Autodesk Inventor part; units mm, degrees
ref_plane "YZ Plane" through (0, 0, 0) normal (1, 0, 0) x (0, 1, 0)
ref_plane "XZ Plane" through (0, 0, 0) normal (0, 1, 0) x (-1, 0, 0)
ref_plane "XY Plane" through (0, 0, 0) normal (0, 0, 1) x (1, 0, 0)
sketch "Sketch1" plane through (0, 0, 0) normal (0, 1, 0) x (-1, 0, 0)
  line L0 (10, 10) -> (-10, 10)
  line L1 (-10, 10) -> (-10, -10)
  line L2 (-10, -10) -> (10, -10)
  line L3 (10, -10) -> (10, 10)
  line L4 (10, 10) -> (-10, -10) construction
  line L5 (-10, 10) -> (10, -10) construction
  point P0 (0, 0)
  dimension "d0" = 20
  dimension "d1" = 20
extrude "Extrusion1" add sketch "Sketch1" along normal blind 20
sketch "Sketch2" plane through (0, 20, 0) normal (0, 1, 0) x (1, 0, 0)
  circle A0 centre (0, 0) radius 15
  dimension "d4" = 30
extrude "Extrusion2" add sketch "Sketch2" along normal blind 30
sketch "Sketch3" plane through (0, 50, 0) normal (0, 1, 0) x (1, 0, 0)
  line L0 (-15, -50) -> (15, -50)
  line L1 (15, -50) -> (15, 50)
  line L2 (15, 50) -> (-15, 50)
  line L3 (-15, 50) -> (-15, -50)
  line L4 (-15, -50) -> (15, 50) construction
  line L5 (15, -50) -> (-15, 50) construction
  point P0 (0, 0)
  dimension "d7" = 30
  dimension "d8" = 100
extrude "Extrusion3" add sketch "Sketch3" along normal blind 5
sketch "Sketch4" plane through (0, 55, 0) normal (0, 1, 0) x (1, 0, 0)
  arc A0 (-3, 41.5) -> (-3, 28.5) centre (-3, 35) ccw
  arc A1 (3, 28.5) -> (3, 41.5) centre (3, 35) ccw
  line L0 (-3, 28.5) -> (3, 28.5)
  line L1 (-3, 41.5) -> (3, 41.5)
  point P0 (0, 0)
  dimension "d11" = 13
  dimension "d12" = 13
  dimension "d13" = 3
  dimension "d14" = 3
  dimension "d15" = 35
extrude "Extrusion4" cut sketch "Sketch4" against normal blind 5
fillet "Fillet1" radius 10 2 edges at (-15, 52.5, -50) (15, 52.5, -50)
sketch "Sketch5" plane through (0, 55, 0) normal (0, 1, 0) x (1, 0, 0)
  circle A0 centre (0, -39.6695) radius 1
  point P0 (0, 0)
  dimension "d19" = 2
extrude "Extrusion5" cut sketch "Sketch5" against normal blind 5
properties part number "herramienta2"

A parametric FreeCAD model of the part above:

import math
import FreeCAD as App
import Part
import Sketcher
from FreeCAD import Vector
Q = App.Units.Quantity


def edges_at(feature, points):
    """Names of the edges that pass closest to the given points."""
    edges = feature.Shape.Edges
    near = lambda p: min(range(len(edges)), key=lambda i: edges[i].distToShape(Part.Vertex(*p))[0])
    return sorted({f"Edge{near(p) + 1}" for p in points})

doc = App.newDocument("Part")
body = doc.addObject("PartDesign::Body", "Body")

# Sketch on XZ plane
sketch1 = body.newObject("Sketcher::SketchObject", "Sketch")
sketch1.AttachmentSupport = (doc.getObject("XZ_Plane"), [""])
sketch1.MapMode = "FlatFace"
sketch1.addGeometry([
    Part.LineSegment(Vector(-10, -10, 0), Vector(-10, 10, 0)),
    Part.LineSegment(Vector(-10, 10, 0), Vector(10, 10, 0)),
    Part.LineSegment(Vector(10, 10, 0), Vector(10, -10, 0)),
    Part.LineSegment(Vector(10, -10, 0), Vector(-10, -10, 0)),
], False)
sketch1.addConstraint([
    Sketcher.Constraint("Coincident", 0, 2, 1, 1),
    Sketcher.Constraint("Coincident", 1, 2, 2, 1),
    Sketcher.Constraint("Coincident", 2, 2, 3, 1),
    Sketcher.Constraint("Coincident", 3, 2, 0, 1),
    Sketcher.Constraint("Vertical", 0),
    Sketcher.Constraint("Horizontal", 1),
    Sketcher.Constraint("Vertical", 2),
    Sketcher.Constraint("Horizontal", 3),
    Sketcher.Constraint("Symmetric", 0, 2, 2, 2, -1, 1),
    Sketcher.Constraint("Equal", 3, 0),
    Sketcher.Constraint("DistanceX", 1, 1, 1, 2, Q("20 mm")),
])
pad1 = body.newObject("PartDesign::Pad", "Pad")
pad1.Profile = sketch1
pad1.Length = 20
pad1.Reversed = True

# Sketch on XZ plane
sketch2 = body.newObject("Sketcher::SketchObject", "Sketch001")
sketch2.AttachmentSupport = (doc.getObject("XZ_Plane"), [""])
sketch2.MapMode = "FlatFace"
sketch2.AttachmentOffset = App.Placement(Vector(0, 0, -20), App.Rotation())
sketch2.addGeometry(Part.Circle(Vector(0, 0, 0), Vector(0, 0, 1), 15), False)
sketch2.addConstraint([
    Sketcher.Constraint("Coincident", 0, 3, -1, 1),
    Sketcher.Constraint("Diameter", 0, Q("30 mm")),
])
pad2 = body.newObject("PartDesign::Pad", "Pad001")
pad2.Profile = sketch2
pad2.Length = 30
pad2.Reversed = True

# Sketch on XZ plane
sketch3 = body.newObject("Sketcher::SketchObject", "Sketch002")
sketch3.AttachmentSupport = (doc.getObject("XZ_Plane"), [""])
sketch3.MapMode = "FlatFace"
sketch3.AttachmentOffset = App.Placement(Vector(0, 0, -50), App.Rotation())
sketch3.addGeometry([
    Part.LineSegment(Vector(-15, -50, 0), Vector(-15, 50, 0)),
    Part.LineSegment(Vector(-15, 50, 0), Vector(15, 50, 0)),
    Part.LineSegment(Vector(15, 50, 0), Vector(15, -50, 0)),
    Part.LineSegment(Vector(15, -50, 0), Vector(-15, -50, 0)),
], False)
sketch3.addConstraint([
    Sketcher.Constraint("Coincident", 0, 2, 1, 1),
    Sketcher.Constraint("Coincident", 1, 2, 2, 1),
    Sketcher.Constraint("Coincident", 2, 2, 3, 1),
    Sketcher.Constraint("Coincident", 3, 2, 0, 1),
    Sketcher.Constraint("Vertical", 0),
    Sketcher.Constraint("Horizontal", 1),
    Sketcher.Constraint("Vertical", 2),
    Sketcher.Constraint("Horizontal", 3),
    Sketcher.Constraint("Symmetric", 0, 2, 2, 2, -1, 1),
    Sketcher.Constraint("DistanceX", 1, 1, 1, 2, Q("30 mm")),
    Sketcher.Constraint("DistanceY", 0, 1, 0, 2, Q("100 mm")),
])
pad3 = body.newObject("PartDesign::Pad", "Pad002")
pad3.Profile = sketch3
pad3.Length = 5
pad3.Reversed = True

# Sketch on XZ plane
sketch4 = body.newObject("Sketcher::SketchObject", "Sketch003")
sketch4.AttachmentSupport = (doc.getObject("XZ_Plane"), [""])
sketch4.MapMode = "FlatFace"
sketch4.AttachmentOffset = App.Placement(Vector(0, 0, -55), App.Rotation())
sketch4.addGeometry([
    Part.LineSegment(Vector(3, -41.5, 0), Vector(-3, -41.5, 0)),
    Part.ArcOfCircle(Part.Circle(Vector(-3, -35, 0), Vector(0, 0, 1), 6.5), math.radians(90), math.radians(270)),
    Part.LineSegment(Vector(-3, -28.5, 0), Vector(3, -28.5, 0)),
    Part.ArcOfCircle(Part.Circle(Vector(3, -35, 0), Vector(0, 0, 1), 6.5), math.radians(-90), math.radians(90)),
], False)
sketch4.addConstraint([
    Sketcher.Constraint("Tangent", 0, 2, 1, 2),
    Sketcher.Constraint("Tangent", 1, 1, 2, 1),
    Sketcher.Constraint("Tangent", 2, 2, 3, 2),
    Sketcher.Constraint("Tangent", 3, 1, 0, 1),
    Sketcher.Constraint("Horizontal", 0),
    Sketcher.Constraint("Horizontal", 2),
    Sketcher.Constraint("Radius", 1, Q("6.5 mm")),
    Sketcher.Constraint("DistanceX", 1, 3, -1, 1, Q("3 mm")),
    Sketcher.Constraint("DistanceY", 1, 3, -1, 1, Q("35 mm")),
    Sketcher.Constraint("DistanceX", -1, 1, 3, 3, Q("3 mm")),
])
pocket1 = body.newObject("PartDesign::Pocket", "Pocket")
pocket1.Profile = sketch4
pocket1.Length = 5
pocket1.Reversed = True
doc.recompute()

fillet = body.newObject("PartDesign::Fillet", "Fillet")
fillet.Base = (pocket1, edges_at(pocket1, [(-15, 52.5, -50), (15, 52.5, -50)]))
fillet.Radius = 10

# Sketch on XZ plane
sketch5 = body.newObject("Sketcher::SketchObject", "Sketch004")
sketch5.AttachmentSupport = (doc.getObject("XZ_Plane"), [""])
sketch5.MapMode = "FlatFace"
sketch5.AttachmentOffset = App.Placement(Vector(0, 0, -55), App.Rotation())
sketch5.addGeometry(Part.Circle(Vector(0, 39.6695, 0), Vector(0, 0, 1), 1), False)
sketch5.addConstraint([
    Sketcher.Constraint("PointOnObject", 0, 3, -2),
    Sketcher.Constraint("Diameter", 0, Q("2 mm")),
    Sketcher.Constraint("DistanceY", -1, 1, 0, 3, Q("39.6695 mm")),
])
pocket2 = body.newObject("PartDesign::Pocket", "Pocket001")
pocket2.Profile = sketch5
pocket2.Length = 5
pocket2.Reversed = True

doc.recompute()
